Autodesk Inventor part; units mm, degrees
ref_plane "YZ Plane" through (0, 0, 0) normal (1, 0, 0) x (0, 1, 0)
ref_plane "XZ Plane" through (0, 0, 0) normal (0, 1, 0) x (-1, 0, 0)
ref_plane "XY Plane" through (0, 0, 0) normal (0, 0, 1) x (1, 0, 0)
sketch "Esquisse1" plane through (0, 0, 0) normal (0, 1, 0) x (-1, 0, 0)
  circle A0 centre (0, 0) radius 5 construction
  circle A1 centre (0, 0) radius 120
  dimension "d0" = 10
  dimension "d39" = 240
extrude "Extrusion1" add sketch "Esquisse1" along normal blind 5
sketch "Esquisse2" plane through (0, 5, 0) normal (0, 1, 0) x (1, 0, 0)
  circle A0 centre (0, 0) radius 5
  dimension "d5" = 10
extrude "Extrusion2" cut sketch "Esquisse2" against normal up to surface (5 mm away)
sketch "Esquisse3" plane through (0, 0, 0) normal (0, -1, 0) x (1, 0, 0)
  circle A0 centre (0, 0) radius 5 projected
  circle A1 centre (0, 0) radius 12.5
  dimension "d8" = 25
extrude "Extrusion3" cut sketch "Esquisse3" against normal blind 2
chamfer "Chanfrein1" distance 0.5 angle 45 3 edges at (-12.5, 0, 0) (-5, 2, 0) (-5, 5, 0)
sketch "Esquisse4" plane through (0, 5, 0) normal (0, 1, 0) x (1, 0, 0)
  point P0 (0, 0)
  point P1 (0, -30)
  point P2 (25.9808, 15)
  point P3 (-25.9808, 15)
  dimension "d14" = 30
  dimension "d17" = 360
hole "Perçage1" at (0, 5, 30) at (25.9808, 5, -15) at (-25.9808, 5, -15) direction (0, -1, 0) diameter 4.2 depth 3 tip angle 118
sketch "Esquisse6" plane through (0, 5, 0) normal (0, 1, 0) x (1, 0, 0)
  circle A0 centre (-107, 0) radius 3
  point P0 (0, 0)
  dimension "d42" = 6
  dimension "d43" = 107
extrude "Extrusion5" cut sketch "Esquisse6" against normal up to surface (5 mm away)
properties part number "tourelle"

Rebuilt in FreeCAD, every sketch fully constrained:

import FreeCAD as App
import Part
import Sketcher
Q = App.Units.Quantity


def edges_at(feature, points):
    """Names of the edges that pass closest to the given points."""
    edges = feature.Shape.Edges
    near = lambda p: min(range(len(edges)), key=lambda i: edges[i].distToShape(Part.Vertex(*p))[0])
    return sorted({f"Edge{near(p) + 1}" for p in points})

doc = App.newDocument("Part")
body = doc.addObject("PartDesign::Body", "Body")

# Sketch on XZ plane
sketch1 = body.newObject("Sketcher::SketchObject", "Sketch")
sketch1.AttachmentSupport = (doc.getObject("XZ_Plane"), [""])
sketch1.MapMode = "FlatFace"
sketch1.addGeometry(Part.Circle(App.Vector(0, 0, 0), App.Vector(0, 0, 1), 120), False)
sketch1.addConstraint(Sketcher.Constraint("Coincident", 0, 3, -1, 1))
sketch1.addConstraint(Sketcher.Constraint("Diameter", 0, Q("240 mm")))
pad1 = body.newObject("PartDesign::Pad", "Pad")
pad1.Profile = sketch1
pad1.Length = 5
pad1.Reversed = True

# Sketch on XZ plane
sketch2 = body.newObject("Sketcher::SketchObject", "Sketch001")
sketch2.AttachmentSupport = (doc.getObject("XZ_Plane"), [""])
sketch2.MapMode = "FlatFace"
sketch2.AttachmentOffset = App.Placement(App.Vector(0, 0, -5), App.Rotation())
sketch2.addGeometry(Part.Circle(App.Vector(0, 0, 0), App.Vector(0, 0, 1), 5), False)
sketch2.addConstraint(Sketcher.Constraint("Coincident", 0, 3, -1, 1))
sketch2.addConstraint(Sketcher.Constraint("Diameter", 0, Q("10 mm")))
pocket1 = body.newObject("PartDesign::Pocket", "Pocket")
pocket1.Profile = sketch2
pocket1.Length = 5
pocket1.Reversed = True

# Sketch on XZ plane
sketch3 = body.newObject("Sketcher::SketchObject", "Sketch002")
sketch3.AttachmentSupport = (doc.getObject("XZ_Plane"), [""])
sketch3.MapMode = "FlatFace"
sketch3.addGeometry(Part.Circle(App.Vector(0, 0, 0), App.Vector(0, 0, 1), 12), False)
sketch3.addGeometry(Part.Circle(App.Vector(0, 0, 0), App.Vector(0, 0, 1), 5), False)
sketch3.addConstraint(Sketcher.Constraint("Coincident", 0, 3, -1, 1))
sketch3.addConstraint(Sketcher.Constraint("Coincident", 1, 3, -1, 1))
sketch3.addConstraint(Sketcher.Constraint("Diameter", 0, Q("25 mm")))
sketch3.addConstraint(Sketcher.Constraint("Diameter", 1, Q("10 mm")))
pocket2 = body.newObject("PartDesign::Pocket", "Pocket001")
pocket2.Profile = sketch3
pocket2.Length = 2
doc.recompute()

chamfer = body.newObject("PartDesign::Chamfer", "Chamfer")
chamfer.Base = (pocket2, edges_at(pocket2, [(-12.5, 0, 0), (-5, 2, 0), (-5, 5, 0)]))
chamfer.Size = 0.5

# Sketch on XZ plane
sketch4 = body.newObject("Sketcher::SketchObject", "Sketch003")
sketch4.AttachmentSupport = (doc.getObject("XZ_Plane"), [""])
sketch4.MapMode = "FlatFace"
sketch4.AttachmentOffset = App.Placement(App.Vector(0, 0, -5), App.Rotation())
sketch4.addGeometry(Part.Circle(App.Vector(0, 30, 0), App.Vector(0, 0, 1), 2.1), False)
sketch4.addGeometry(Part.Circle(App.Vector(26, -15, 0), App.Vector(0, 0, 1), 2.1), False)
sketch4.addGeometry(Part.Circle(App.Vector(-26, -15, 0), App.Vector(0, 0, 1), 2.1), False)
sketch4.addConstraint(Sketcher.Constraint("Equal", 0, 1))
sketch4.addConstraint(Sketcher.Constraint("Equal", 1, 2))
sketch4.addConstraint(Sketcher.Constraint("Symmetric", 1, 3, 2, 3, -2))
sketch4.addConstraint(Sketcher.Constraint("PointOnObject", 0, 3, -2))
sketch4.addConstraint(Sketcher.Constraint("Diameter", 0, Q("4.2 mm")))
sketch4.addConstraint(Sketcher.Constraint("DistanceY", -1, 1, 0, 3, Q("30 mm")))
sketch4.addConstraint(Sketcher.Constraint("DistanceY", 1, 3, -1, 1, Q("15 mm")))
sketch4.addConstraint(Sketcher.Constraint("DistanceX", -1, 1, 1, 3, Q("25.9808 mm")))
doc.recompute()
hole = body.newObject("PartDesign::Hole", "Hole")
hole.Profile = sketch4
hole.ThreadType = "None"
hole.Diameter = 4.2
hole.DepthType = "Dimension"
hole.Depth = 3
hole.DrillPoint = "Angled"
hole.DrillPointAngle = 118
hole.Reversed = True

# Sketch on XZ plane
sketch5 = body.newObject("Sketcher::SketchObject", "Sketch004")
sketch5.AttachmentSupport = (doc.getObject("XZ_Plane"), [""])
sketch5.MapMode = "FlatFace"
sketch5.AttachmentOffset = App.Placement(App.Vector(0, 0, -5), App.Rotation())
sketch5.addGeometry(Part.Circle(App.Vector(-107, 0, 0), App.Vector(0, 0, 1), 3), False)
sketch5.addConstraint(Sketcher.Constraint("PointOnObject", 0, 3, -1))
sketch5.addConstraint(Sketcher.Constraint("Diameter", 0, Q("6 mm")))
sketch5.addConstraint(Sketcher.Constraint("DistanceX", 0, 3, -1, 1, Q("107 mm")))
pocket3 = body.newObject("PartDesign::Pocket", "Pocket002")
pocket3.Profile = sketch5
pocket3.Length = 5
pocket3.Reversed = True

doc.recompute()
